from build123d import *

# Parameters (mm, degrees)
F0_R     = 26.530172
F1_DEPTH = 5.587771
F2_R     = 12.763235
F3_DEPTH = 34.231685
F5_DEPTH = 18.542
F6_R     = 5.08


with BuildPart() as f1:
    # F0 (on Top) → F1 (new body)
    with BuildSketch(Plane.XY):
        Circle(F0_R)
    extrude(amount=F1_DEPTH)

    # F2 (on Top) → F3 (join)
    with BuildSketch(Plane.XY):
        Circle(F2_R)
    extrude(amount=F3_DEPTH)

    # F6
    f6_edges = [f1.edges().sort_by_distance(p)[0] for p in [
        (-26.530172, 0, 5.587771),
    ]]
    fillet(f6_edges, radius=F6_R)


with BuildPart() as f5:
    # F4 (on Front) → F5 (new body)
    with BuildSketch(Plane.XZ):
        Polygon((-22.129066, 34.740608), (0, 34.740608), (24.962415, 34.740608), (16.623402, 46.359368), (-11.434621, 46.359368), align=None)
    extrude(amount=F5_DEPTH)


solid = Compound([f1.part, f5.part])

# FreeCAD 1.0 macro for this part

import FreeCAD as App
import Part
import Sketcher
from FreeCAD import Vector
Q = App.Units.Quantity


def edges_at(feature, points):
    """Names of the edges that pass closest to the given points."""
    edges = feature.Shape.Edges
    near = lambda p: min(range(len(edges)), key=lambda i: edges[i].distToShape(Part.Vertex(*p))[0])
    return sorted({f"Edge{near(p) + 1}" for p in points})


def add_polygon(sketch, points):
    """Adds a closed chain of lines whose ends are joined by coincident constraints."""
    first, n = sketch.GeometryCount, len(points)
    for a, b in zip(points, points[1:] + points[:1]):
        sketch.addGeometry(Part.LineSegment(App.Vector(*a, 0), App.Vector(*b, 0)), False)
    for i in range(n):
        sketch.addConstraint(Sketcher.Constraint("Coincident", first + i, 2, first + (i + 1) % n, 1))

doc = App.newDocument("Part")
body = doc.addObject("PartDesign::Body", "Body")

sketch1 = body.newObject("Sketcher::SketchObject", "Sketch")
sketch1.AttachmentSupport = (doc.getObject("XY_Plane"), [""])
sketch1.MapMode = "FlatFace"
sketch1.addGeometry(Part.Circle(Vector(0, 0, 0), Vector(0, 0, 1), 26.530172), False)
sketch1.addConstraint([
    Sketcher.Constraint("Coincident", 0, 3, -1, 1),
    Sketcher.Constraint("Diameter", 0, 53.060344),
])
pad1 = body.newObject("PartDesign::Pad", "Pad")
pad1.Profile = sketch1
pad1.Length = 5.587771

sketch2 = body.newObject("Sketcher::SketchObject", "Sketch001")
sketch2.AttachmentSupport = (doc.getObject("XY_Plane"), [""])
sketch2.MapMode = "FlatFace"
sketch2.addGeometry(Part.Circle(Vector(0, 0, 0), Vector(0, 0, 1), 12.763235), False)
sketch2.addConstraint([
    Sketcher.Constraint("Coincident", 0, 3, -1, 1),
    Sketcher.Constraint("Diameter", 0, 25.52647),
])
pad2 = body.newObject("PartDesign::Pad", "Pad001")
pad2.Profile = sketch2
pad2.Length = 34.231685
doc.recompute()

fillet = body.newObject("PartDesign::Fillet", "Fillet")
fillet.Base = (pad2, edges_at(pad2, [(-26.53, 0, 5.588)]))
fillet.Radius = Q("0.2 in")
body2 = doc.addObject("PartDesign::Body", "Body001")

sketch3 = body2.newObject("Sketcher::SketchObject", "Sketch002")
sketch3.AttachmentSupport = (doc.getObject("XZ_Plane001"), [""])
sketch3.MapMode = "FlatFace"
add_polygon(sketch3, [(-22.129066, 34.740608), (24.962415, 34.740608), (16.623402, 46.359368), (-11.434621, 46.359368)])
sketch3.addConstraint([
    Sketcher.Constraint("Horizontal", 0),
    Sketcher.Constraint("Horizontal", 2),
    Sketcher.Constraint("DistanceX", 0, 1, 0, 2, 47.091481),
    Sketcher.Constraint("DistanceX", -1, 1, 1, 2, 16.623402),
    Sketcher.Constraint("Distance", 3, 15.79135),
    Sketcher.Constraint("DistanceX", 2, 2, 2, 1, 28.058023),
    Sketcher.Constraint("DistanceY", -1, 1, 0, 2, 34.740608),
    Sketcher.Constraint("DistanceY", -1, 1, 1, 2, 46.359368),
])
pad3 = body2.newObject("PartDesign::Pad", "Pad002")
pad3.Profile = sketch3
pad3.Length = Q("0.73 in")

doc.recompute()
